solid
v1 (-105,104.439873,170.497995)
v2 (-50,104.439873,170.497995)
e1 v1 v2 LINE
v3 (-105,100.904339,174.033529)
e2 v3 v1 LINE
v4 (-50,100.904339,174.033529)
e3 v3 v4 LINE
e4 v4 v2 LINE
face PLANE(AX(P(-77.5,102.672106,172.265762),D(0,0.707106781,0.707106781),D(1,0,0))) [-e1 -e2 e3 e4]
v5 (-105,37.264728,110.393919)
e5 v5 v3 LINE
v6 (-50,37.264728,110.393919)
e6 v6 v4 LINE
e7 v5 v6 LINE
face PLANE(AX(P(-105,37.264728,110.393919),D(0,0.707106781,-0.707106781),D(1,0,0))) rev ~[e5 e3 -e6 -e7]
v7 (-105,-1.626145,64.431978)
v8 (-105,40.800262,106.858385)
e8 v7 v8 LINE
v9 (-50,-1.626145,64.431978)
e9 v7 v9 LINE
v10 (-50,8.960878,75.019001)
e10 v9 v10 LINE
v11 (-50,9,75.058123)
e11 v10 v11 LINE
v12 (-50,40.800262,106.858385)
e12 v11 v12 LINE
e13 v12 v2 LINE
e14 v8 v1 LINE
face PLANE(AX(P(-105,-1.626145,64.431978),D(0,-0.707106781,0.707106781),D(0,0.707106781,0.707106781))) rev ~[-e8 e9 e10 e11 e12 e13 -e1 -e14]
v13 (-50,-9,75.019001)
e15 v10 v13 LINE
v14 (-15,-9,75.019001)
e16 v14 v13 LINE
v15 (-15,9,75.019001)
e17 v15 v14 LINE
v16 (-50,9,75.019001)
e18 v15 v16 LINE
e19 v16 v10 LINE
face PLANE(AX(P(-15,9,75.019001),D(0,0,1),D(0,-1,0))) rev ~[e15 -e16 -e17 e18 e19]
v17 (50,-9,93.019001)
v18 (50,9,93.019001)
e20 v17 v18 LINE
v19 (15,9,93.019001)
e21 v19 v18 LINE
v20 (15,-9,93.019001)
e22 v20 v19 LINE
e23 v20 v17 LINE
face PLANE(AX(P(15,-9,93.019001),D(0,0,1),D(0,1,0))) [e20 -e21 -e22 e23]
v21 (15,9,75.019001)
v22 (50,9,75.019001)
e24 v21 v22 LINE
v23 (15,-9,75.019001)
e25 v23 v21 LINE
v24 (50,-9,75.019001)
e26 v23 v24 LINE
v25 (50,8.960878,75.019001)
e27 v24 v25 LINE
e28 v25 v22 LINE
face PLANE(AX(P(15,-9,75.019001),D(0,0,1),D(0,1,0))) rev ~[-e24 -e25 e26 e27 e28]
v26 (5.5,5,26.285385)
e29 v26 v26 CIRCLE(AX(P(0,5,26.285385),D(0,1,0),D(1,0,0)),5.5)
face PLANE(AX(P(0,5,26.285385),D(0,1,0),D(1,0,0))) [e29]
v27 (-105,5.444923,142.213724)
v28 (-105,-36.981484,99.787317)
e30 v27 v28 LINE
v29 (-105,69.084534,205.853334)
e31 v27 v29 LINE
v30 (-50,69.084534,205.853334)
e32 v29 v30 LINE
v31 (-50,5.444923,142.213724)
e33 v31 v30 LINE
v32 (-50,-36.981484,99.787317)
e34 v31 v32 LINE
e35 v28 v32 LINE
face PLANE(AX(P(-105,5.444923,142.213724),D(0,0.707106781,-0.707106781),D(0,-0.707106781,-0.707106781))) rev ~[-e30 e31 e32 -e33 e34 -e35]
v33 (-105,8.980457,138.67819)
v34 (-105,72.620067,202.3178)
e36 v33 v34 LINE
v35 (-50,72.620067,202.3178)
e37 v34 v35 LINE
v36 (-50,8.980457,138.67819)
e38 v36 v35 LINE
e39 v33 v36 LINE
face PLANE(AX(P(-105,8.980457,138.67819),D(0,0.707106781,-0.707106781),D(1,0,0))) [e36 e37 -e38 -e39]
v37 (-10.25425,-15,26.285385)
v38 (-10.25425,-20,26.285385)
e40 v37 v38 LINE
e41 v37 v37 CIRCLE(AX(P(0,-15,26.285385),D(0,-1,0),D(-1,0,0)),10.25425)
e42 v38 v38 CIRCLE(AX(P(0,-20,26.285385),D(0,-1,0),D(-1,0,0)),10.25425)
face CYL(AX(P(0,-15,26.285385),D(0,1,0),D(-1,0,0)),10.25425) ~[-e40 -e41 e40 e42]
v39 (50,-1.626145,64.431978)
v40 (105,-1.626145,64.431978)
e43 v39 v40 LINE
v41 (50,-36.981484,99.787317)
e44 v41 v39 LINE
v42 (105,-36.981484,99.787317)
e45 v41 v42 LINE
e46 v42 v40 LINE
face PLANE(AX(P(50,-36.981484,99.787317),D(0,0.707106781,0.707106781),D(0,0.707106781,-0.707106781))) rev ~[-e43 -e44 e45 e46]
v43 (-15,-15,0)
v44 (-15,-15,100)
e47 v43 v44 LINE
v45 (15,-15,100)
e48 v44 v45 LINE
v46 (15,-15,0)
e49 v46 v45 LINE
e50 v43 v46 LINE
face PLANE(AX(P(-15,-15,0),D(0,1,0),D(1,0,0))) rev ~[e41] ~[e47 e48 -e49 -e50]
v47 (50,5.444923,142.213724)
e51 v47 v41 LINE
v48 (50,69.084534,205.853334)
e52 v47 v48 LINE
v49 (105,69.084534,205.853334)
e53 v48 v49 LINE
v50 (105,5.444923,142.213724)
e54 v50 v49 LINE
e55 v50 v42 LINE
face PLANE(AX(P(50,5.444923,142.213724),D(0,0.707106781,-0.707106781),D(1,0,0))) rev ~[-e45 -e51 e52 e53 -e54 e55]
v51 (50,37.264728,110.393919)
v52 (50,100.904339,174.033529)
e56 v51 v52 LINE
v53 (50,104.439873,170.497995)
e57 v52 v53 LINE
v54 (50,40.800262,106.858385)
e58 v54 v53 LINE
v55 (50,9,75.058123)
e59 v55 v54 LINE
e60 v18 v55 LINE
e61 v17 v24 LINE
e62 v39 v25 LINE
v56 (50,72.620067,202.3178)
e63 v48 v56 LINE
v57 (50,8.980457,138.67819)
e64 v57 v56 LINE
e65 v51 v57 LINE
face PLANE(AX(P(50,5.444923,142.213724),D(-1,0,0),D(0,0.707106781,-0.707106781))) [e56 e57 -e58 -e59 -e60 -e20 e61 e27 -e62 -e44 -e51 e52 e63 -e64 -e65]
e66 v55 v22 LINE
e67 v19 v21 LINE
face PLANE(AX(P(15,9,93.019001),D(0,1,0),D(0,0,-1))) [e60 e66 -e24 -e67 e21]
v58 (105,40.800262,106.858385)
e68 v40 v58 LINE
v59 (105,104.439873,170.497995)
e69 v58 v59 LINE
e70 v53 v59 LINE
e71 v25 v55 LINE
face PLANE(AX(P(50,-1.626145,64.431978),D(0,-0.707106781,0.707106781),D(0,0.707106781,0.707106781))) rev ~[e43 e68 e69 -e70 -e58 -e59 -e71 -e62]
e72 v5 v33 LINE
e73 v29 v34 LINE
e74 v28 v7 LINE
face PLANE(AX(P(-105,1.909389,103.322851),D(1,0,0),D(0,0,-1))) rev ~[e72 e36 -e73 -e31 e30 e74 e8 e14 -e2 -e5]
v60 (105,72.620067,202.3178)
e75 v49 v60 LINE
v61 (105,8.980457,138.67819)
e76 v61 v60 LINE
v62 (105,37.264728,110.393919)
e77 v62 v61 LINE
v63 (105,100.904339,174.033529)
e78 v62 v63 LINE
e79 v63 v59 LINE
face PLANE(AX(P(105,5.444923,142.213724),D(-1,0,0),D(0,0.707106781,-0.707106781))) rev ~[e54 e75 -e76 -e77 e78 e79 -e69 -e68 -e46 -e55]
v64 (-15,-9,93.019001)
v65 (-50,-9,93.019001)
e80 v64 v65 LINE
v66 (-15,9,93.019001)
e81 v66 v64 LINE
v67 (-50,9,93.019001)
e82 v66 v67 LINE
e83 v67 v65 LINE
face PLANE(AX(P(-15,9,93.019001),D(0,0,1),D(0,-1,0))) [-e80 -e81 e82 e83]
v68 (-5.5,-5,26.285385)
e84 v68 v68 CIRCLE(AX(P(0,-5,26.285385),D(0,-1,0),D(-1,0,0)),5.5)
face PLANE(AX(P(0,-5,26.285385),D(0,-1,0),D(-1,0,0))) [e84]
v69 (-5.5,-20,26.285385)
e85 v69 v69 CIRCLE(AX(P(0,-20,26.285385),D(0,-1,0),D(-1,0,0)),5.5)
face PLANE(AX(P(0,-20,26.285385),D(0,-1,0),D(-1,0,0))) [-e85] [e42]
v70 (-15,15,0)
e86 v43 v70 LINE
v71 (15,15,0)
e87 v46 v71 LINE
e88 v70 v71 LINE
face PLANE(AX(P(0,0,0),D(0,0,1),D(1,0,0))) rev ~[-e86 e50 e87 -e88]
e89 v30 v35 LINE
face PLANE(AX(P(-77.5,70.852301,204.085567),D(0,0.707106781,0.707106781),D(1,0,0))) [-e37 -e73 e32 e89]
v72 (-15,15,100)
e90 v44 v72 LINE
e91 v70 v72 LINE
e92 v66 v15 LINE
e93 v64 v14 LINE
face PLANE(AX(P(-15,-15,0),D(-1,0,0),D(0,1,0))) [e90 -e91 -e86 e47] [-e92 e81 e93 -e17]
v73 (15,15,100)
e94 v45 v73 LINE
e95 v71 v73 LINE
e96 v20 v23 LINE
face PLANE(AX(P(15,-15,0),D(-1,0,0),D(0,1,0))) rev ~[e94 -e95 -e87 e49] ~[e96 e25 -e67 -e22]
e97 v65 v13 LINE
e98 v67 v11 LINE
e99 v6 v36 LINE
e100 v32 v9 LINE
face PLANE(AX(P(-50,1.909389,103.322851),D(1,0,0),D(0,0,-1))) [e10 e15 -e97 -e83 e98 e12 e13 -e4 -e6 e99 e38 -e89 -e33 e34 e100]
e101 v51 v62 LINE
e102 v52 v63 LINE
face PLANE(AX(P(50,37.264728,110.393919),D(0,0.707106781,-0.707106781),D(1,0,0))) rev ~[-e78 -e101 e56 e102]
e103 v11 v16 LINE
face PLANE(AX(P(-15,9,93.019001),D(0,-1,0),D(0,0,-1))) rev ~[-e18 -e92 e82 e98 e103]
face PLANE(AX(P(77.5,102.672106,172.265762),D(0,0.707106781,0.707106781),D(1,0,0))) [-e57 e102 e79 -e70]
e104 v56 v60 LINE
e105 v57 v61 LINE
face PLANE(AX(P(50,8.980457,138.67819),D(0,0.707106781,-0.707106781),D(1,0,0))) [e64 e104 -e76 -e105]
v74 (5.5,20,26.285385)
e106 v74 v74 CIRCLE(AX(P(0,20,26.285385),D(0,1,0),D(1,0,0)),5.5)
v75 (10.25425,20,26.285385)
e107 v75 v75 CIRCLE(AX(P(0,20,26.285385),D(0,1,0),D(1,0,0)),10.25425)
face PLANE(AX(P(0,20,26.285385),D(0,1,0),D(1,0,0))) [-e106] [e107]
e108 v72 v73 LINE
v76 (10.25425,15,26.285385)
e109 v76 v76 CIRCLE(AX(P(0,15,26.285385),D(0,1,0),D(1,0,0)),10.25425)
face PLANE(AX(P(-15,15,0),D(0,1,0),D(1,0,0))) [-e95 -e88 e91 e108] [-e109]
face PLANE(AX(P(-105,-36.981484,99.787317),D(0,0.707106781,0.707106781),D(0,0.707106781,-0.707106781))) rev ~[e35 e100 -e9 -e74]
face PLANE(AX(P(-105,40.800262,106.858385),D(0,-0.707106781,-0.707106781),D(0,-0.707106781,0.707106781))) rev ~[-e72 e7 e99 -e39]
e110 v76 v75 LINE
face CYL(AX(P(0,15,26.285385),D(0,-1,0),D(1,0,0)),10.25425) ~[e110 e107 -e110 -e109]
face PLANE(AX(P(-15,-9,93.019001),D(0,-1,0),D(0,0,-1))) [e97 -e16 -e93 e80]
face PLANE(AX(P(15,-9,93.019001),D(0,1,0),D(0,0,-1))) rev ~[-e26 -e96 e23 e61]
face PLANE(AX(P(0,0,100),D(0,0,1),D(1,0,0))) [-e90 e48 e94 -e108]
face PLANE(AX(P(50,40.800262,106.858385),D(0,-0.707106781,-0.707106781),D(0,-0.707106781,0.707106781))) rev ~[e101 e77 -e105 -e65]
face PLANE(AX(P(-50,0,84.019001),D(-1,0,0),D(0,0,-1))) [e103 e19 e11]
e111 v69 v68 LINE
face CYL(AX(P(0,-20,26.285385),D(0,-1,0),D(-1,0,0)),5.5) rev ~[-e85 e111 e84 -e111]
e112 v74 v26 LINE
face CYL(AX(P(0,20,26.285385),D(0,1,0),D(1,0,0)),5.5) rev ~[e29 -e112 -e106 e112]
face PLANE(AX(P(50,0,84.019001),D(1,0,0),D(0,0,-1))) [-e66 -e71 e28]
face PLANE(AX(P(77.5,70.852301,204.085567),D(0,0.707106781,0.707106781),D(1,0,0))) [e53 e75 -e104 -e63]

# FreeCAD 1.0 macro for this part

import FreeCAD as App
import Part
import Sketcher

V = App.Vector
Q = App.Units.Quantity


def add_polygon(sketch, points):
    """Adds a closed chain of lines whose ends are joined by coincident constraints."""
    first, n = sketch.GeometryCount, len(points)
    for a, b in zip(points, points[1:] + points[:1]):
        sketch.addGeometry(Part.LineSegment(App.Vector(*a, 0), App.Vector(*b, 0)), False)
    for i in range(n):
        sketch.addConstraint(Sketcher.Constraint("Coincident", first + i, 2, first + (i + 1) % n, 1))

doc = App.newDocument("Part")
params = doc.addObject("Spreadsheet::Sheet", "Params")
for row, (alias, value) in enumerate([
    ("sketch1_width", "30 mm"),
    ("pad1_length", "100 mm"),
    ("sketch2_width", "18 mm"),
    ("pad2_length", "35 mm"),
    ("pad3_length", "5 mm"),
    ("sketch4_diameter", "11 mm"),
    ("pocket1_length", "15 mm"),
    ("sketch5_length", "60 mm"),
    ("sketch5_length2", "50 mm"),
    ("pad4_length", "55 mm"),
    ("linearpattern_pitch", "155 mm"),
    ("sketch6_width", "55 mm"),
    ("sketch6_height", "5 mm"),
    ("pad5_length", "90 mm"),
], start=1):
    params.set(f"A{row}", alias)
    params.set(f"B{row}", "=" + value)
    params.setAlias(f"B{row}", alias)

body = doc.addObject("PartDesign::Body", "Body")

# Sketch on XY plane
sketch1 = body.newObject("Sketcher::SketchObject", "Sketch")
sketch1.AttachmentSupport = (doc.getObject("XY_Plane"), [""])
sketch1.MapMode = "FlatFace"
add_polygon(sketch1, [(-15, 15), (-15, -15), (15, -15), (15, 15)])  # lines 0-3
sketch1.addConstraint([
    Sketcher.Constraint("Vertical", 0),
    Sketcher.Constraint("Horizontal", 1),
    Sketcher.Constraint("Vertical", 2),
    Sketcher.Constraint("Horizontal", 3),
    Sketcher.Constraint("Symmetric", 0, 2, 2, 2, -1, 1),
    Sketcher.Constraint("Equal", 3, 0),
    Sketcher.Constraint("DistanceX", 1, 1, 1, 2, 30.0),
])
sketch1.setExpression("Constraints[10]", "Params.sketch1_width")
pad1 = body.newObject("PartDesign::Pad", "Pad")
pad1.Profile = sketch1
pad1.setExpression("Length", "Params.pad1_length")

# Sketch on YZ plane
sketch2 = body.newObject("Sketcher::SketchObject", "Sketch001")
sketch2.AttachmentSupport = (doc.getObject("YZ_Plane"), [""])
sketch2.MapMode = "FlatFace"
sketch2.AttachmentOffset = App.Placement(V(0, 0, 15), App.Rotation())
add_polygon(sketch2, [(9, 93), (-9, 93), (-9, 75), (9, 75)])  # lines 0-3
sketch2.addConstraint([
    Sketcher.Constraint("Horizontal", 0),
    Sketcher.Constraint("Vertical", 1),
    Sketcher.Constraint("Horizontal", 2),
    Sketcher.Constraint("Vertical", 3),
    Sketcher.Constraint("Equal", 2, 1),
    Sketcher.Constraint("DistanceX", 0, 2, 0, 1, 18.0),
    Sketcher.Constraint("DistanceX", 0, 2, -1, 1, 9.0),
    Sketcher.Constraint("DistanceY", -1, 1, 0, 2, 93.019001),
])
sketch2.setExpression("Constraints[9]", "Params.sketch2_width")
pad2 = body.newObject("PartDesign::Pad", "Pad001")
pad2.Profile = sketch2
pad2.setExpression("Length", "Params.pad2_length")
doc.recompute()

polarpattern = body.newObject("PartDesign::PolarPattern", "PolarPattern")
polarpattern.Originals = [pad2]
polarpattern.Axis = (doc.getObject("Z_Axis"), [""])
polarpattern.Angle = 360
polarpattern.Occurrences = 2
body.Tip = polarpattern

# Sketch on XZ plane
sketch3 = body.newObject("Sketcher::SketchObject", "Sketch002")
sketch3.AttachmentSupport = (doc.getObject("XZ_Plane"), [""])
sketch3.MapMode = "FlatFace"
sketch3.AttachmentOffset = App.Placement(V(0, 0, -15), App.Rotation())
sketch3.addGeometry(Part.Circle(V(0, 26, 0), V(0, 0, 1), 10), False)
sketch3.addConstraint([
    Sketcher.Constraint("PointOnObject", 0, 3, -2),
    Sketcher.Constraint("Diameter", 0, 20.508499),
    Sketcher.Constraint("DistanceY", -1, 1, 0, 3, 26.285385),
])
pad3 = body.newObject("PartDesign::Pad", "Pad002")
pad3.Profile = sketch3
pad3.setExpression("Length", "Params.pad3_length")
pad3.Reversed = True

# Sketch on XZ plane
sketch4 = body.newObject("Sketcher::SketchObject", "Sketch003")
sketch4.AttachmentSupport = (doc.getObject("XZ_Plane"), [""])
sketch4.MapMode = "FlatFace"
sketch4.AttachmentOffset = App.Placement(V(0, 0, -20), App.Rotation())
sketch4.addGeometry(Part.Circle(V(0, 26, 0), V(0, 0, 1), 6), False)
sketch4.addConstraint([
    Sketcher.Constraint("PointOnObject", 0, 3, -2),
    Sketcher.Constraint("Diameter", 0, 11.0),
    Sketcher.Constraint("DistanceY", -1, 1, 0, 3, 26.285385),
])
sketch4.setExpression("Constraints[1]", "Params.sketch4_diameter")
pocket1 = body.newObject("PartDesign::Pocket", "Pocket")
pocket1.Profile = sketch4
pocket1.setExpression("Length", "Params.pocket1_length")
pocket1.Reversed = True
doc.recompute()

polarpattern2 = body.newObject("PartDesign::PolarPattern", "PolarPattern001")
polarpattern2.Originals = [pad3]
polarpattern2.Axis = (doc.getObject("Z_Axis"), [""])
polarpattern2.Angle = 360
polarpattern2.Occurrences = 2
body.Tip = polarpattern2
doc.recompute()

polarpattern3 = body.newObject("PartDesign::PolarPattern", "PolarPattern002")
polarpattern3.Originals = [pocket1]
polarpattern3.Axis = (doc.getObject("Z_Axis"), [""])
polarpattern3.Angle = 360
polarpattern3.Occurrences = 2
body.Tip = polarpattern3

# Sketch on YZ plane
sketch5 = body.newObject("Sketcher::SketchObject", "Sketch004")
sketch5.AttachmentSupport = (doc.getObject("YZ_Plane"), [""])
sketch5.MapMode = "FlatFace"
sketch5.AttachmentOffset = App.Placement(V(0, 0, 50), App.Rotation())
add_polygon(sketch5, [(-2, 64), (41, 107), (5, 142), (-37, 100)])  # lines 0-3
sketch5.addConstraint([
    Sketcher.Constraint("Perpendicular", 0, 1),
    Sketcher.Constraint("Perpendicular", 1, 2),
    Sketcher.Constraint("Perpendicular", 2, 3),
    Sketcher.Constraint("Angle", 0, Q("45 deg")),
    Sketcher.Constraint("Distance", 0, 60.0),
    Sketcher.Constraint("Distance", 1, 50.0),
    Sketcher.Constraint("DistanceY", -1, 1, 3, 2, 64.431978),
    Sketcher.Constraint("DistanceX", -1, 1, 0, 2, 40.800262),
])
sketch5.setExpression("Constraints[8]", "Params.sketch5_length")
sketch5.setExpression("Constraints[9]", "Params.sketch5_length2")
pad4 = body.newObject("PartDesign::Pad", "Pad003")
pad4.Profile = sketch5
pad4.setExpression("Length", "Params.pad4_length")
doc.recompute()

linearpattern = body.newObject("PartDesign::LinearPattern", "LinearPattern")
linearpattern.Originals = [pad4]
linearpattern.Direction = (doc.getObject("X_Axis"), [""])
linearpattern.Mode = "offset"
linearpattern.setExpression("Offset", "Params.linearpattern_pitch")
linearpattern.Occurrences = 2
linearpattern.Reversed = True
body.Tip = linearpattern

# Sketch on an angled plane
sketch6 = body.newObject("Sketcher::SketchObject", "Sketch005")
sketch6.Placement = App.Placement(V(0, 73.829324, 73.829324), App.Rotation(V(1, 0, 0), V(0, 0.707106781, -0.707106781), V(0, 0.707106781, 0.707106781), "ZXY"))
add_polygon(sketch6, [(50, -91.7), (50, -96.7), (105, -96.7), (105, -91.7)])  # lines 0-3
add_polygon(sketch6, [(50, -46.7), (50, -51.7), (105, -51.7), (105, -46.7)])  # lines 4-7
add_polygon(sketch6, [(-105, -91.7), (-105, -96.7), (-50, -96.7), (-50, -91.7)])  # lines 8-11
add_polygon(sketch6, [(-105, -46.7), (-105, -51.7), (-50, -51.7), (-50, -46.7)])  # lines 12-15
sketch6.addConstraint([
    Sketcher.Constraint("Vertical", 0),
    Sketcher.Constraint("Horizontal", 1),
    Sketcher.Constraint("Vertical", 2),
    Sketcher.Constraint("Horizontal", 3),
    Sketcher.Constraint("Vertical", 4),
    Sketcher.Constraint("Horizontal", 5),
    Sketcher.Constraint("Vertical", 6),
    Sketcher.Constraint("Horizontal", 7),
    Sketcher.Constraint("Vertical", 8),
    Sketcher.Constraint("Horizontal", 9),
    Sketcher.Constraint("Vertical", 10),
    Sketcher.Constraint("Horizontal", 11),
    Sketcher.Constraint("Vertical", 12),
    Sketcher.Constraint("Horizontal", 13),
    Sketcher.Constraint("Vertical", 14),
    Sketcher.Constraint("Horizontal", 15),
    Sketcher.Constraint("Symmetric", 1, 2, 8, 2, -2),
    Sketcher.Constraint("Symmetric", 3, 2, 10, 2, -2),
    Sketcher.Constraint("Symmetric", 5, 2, 12, 2, -2),
    Sketcher.Constraint("Symmetric", 7, 2, 14, 2, -2),
    Sketcher.Constraint("Vertical", 3, 2, 4, 2),
    Sketcher.Constraint("Vertical", 2, 2, 5, 2),
    Sketcher.Constraint("Equal", 2, 4),
    Sketcher.Constraint("DistanceX", 1, 1, 1, 2, 55.0),
    Sketcher.Constraint("DistanceY", 0, 2, 0, 1, 5.0),
    Sketcher.Constraint("DistanceX", -1, 1, 0, 2, 50.0),
    Sketcher.Constraint("DistanceY", 3, 2, 4, 2, 40.0),
    Sketcher.Constraint("DistanceY", 0, 2, -1, 1, 96.710146),
])
sketch6.setExpression("Constraints[39]", "Params.sketch6_width")
sketch6.setExpression("Constraints[40]", "Params.sketch6_height")
pad5 = body.newObject("PartDesign::Pad", "Pad004")
pad5.Profile = sketch6
pad5.setExpression("Length", "Params.pad5_length")

doc.recompute()
